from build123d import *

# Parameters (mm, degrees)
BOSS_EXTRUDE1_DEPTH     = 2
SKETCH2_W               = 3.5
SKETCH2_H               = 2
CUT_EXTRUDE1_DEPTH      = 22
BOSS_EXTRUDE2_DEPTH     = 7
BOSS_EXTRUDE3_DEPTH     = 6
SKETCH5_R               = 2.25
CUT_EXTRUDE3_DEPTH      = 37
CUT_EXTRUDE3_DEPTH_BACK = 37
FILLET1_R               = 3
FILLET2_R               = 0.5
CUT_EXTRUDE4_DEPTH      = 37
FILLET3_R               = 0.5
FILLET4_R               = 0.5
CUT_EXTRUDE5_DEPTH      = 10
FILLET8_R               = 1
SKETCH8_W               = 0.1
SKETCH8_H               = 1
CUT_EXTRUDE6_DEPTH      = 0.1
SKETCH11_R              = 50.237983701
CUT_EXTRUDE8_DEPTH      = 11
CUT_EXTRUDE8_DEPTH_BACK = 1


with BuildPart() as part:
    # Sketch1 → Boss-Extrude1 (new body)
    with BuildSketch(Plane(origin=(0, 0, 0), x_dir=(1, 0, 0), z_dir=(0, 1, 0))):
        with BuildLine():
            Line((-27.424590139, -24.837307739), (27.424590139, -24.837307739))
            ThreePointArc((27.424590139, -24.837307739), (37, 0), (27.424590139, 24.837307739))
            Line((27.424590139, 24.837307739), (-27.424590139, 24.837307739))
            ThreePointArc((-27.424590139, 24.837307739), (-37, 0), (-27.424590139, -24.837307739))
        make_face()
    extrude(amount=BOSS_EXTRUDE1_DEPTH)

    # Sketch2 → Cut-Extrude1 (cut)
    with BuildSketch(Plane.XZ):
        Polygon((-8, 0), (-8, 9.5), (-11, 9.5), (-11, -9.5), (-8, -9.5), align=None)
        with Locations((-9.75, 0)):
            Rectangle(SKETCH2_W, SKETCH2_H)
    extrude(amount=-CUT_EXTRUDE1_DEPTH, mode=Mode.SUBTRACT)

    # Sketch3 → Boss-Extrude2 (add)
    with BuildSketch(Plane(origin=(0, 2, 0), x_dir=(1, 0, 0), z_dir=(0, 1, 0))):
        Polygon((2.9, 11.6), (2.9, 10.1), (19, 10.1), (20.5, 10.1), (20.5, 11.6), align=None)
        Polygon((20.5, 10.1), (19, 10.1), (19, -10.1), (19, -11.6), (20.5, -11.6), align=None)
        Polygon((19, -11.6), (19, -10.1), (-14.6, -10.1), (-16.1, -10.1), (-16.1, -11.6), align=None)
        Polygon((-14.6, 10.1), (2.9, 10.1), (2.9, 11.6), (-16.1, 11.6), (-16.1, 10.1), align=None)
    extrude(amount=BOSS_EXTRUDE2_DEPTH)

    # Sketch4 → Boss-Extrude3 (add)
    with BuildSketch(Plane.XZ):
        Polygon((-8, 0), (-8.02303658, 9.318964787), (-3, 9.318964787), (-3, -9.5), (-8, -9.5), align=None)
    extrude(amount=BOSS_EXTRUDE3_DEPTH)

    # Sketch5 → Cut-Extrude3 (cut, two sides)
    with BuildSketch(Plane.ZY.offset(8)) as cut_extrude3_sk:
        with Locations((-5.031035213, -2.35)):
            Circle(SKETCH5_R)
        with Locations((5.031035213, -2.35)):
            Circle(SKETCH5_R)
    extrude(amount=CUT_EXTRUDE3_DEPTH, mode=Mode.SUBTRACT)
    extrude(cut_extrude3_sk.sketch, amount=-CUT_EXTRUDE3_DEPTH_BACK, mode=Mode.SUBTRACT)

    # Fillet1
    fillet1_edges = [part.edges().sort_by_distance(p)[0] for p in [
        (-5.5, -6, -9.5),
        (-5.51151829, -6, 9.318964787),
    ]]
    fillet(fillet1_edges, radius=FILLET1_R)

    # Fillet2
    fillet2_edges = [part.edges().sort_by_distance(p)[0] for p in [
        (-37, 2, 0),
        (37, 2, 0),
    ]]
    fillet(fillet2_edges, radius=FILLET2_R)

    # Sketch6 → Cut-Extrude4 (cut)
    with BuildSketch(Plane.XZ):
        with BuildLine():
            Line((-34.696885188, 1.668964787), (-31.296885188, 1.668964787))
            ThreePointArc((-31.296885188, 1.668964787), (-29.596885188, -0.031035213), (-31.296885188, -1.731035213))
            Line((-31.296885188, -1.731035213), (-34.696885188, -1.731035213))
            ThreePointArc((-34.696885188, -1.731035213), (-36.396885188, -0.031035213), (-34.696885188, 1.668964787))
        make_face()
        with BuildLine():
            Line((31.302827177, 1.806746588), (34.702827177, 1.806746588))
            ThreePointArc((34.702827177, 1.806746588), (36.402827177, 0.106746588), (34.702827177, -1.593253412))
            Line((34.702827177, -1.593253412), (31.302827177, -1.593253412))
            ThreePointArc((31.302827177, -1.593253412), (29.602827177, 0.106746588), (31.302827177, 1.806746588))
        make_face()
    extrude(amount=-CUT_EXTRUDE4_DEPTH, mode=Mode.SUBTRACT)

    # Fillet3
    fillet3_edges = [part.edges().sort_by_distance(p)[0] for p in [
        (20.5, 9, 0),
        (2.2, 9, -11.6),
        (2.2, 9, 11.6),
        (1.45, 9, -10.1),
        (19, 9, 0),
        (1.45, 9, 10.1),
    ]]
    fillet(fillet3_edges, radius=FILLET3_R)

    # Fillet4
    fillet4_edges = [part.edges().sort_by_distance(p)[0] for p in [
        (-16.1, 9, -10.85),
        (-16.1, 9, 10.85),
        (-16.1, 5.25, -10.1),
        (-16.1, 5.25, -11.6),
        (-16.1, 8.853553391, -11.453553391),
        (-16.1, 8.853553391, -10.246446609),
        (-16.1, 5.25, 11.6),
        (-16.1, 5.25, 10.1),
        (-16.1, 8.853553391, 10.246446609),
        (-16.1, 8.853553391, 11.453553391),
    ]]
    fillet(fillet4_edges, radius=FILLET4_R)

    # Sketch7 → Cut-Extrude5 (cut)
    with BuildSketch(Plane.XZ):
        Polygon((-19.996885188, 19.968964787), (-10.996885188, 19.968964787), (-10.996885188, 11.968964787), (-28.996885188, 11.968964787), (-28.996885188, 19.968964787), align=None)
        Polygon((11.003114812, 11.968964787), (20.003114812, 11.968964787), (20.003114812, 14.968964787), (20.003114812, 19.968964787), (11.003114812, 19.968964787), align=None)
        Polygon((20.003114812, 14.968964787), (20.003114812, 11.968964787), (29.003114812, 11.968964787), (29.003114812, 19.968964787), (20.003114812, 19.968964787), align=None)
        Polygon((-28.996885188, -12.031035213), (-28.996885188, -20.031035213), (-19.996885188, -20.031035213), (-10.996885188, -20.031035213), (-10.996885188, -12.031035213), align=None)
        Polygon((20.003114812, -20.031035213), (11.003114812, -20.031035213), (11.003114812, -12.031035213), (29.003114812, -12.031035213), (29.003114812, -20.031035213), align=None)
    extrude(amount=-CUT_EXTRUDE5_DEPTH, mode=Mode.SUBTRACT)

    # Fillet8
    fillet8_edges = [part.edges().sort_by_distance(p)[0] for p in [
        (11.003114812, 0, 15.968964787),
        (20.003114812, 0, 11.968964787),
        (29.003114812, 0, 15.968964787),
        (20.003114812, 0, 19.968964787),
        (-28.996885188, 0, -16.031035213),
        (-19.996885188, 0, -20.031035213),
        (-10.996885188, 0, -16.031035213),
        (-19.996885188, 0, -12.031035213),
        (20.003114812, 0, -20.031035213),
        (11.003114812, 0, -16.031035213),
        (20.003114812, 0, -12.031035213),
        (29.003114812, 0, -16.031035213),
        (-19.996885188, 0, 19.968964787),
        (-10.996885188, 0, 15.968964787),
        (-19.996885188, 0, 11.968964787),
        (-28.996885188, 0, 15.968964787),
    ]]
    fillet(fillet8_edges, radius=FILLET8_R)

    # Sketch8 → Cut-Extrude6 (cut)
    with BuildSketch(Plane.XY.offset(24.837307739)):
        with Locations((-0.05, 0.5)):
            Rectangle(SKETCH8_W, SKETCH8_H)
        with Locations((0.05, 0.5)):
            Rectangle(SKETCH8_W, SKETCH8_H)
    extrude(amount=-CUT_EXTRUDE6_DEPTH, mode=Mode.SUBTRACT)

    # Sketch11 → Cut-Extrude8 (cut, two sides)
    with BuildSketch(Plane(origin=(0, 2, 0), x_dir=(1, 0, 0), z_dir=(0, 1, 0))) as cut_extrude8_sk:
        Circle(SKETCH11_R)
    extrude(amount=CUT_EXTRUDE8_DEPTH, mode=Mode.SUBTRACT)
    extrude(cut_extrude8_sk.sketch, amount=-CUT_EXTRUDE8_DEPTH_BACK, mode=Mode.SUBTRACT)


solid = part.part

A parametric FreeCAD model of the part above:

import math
import FreeCAD as App
import Part
import Sketcher

V = App.Vector


def edges_at(feature, points):
    """Names of the edges that pass closest to the given points."""
    edges = feature.Shape.Edges
    near = lambda p: min(range(len(edges)), key=lambda i: edges[i].distToShape(Part.Vertex(*p))[0])
    return sorted({f"Edge{near(p) + 1}" for p in points})


def add_polygon(sketch, points):
    """Adds a closed chain of lines whose ends are joined by coincident constraints."""
    first, n = sketch.GeometryCount, len(points)
    for a, b in zip(points, points[1:] + points[:1]):
        sketch.addGeometry(Part.LineSegment(App.Vector(*a, 0), App.Vector(*b, 0)), False)
    for i in range(n):
        sketch.addConstraint(Sketcher.Constraint("Coincident", first + i, 2, first + (i + 1) % n, 1))

doc = App.newDocument("Part")
body = doc.addObject("PartDesign::Body", "Body")

# Sketch on XZ plane
sketch1 = body.newObject("Sketcher::SketchObject", "Sketch")
sketch1.AttachmentSupport = (doc.getObject("XZ_Plane"), [""])
sketch1.MapMode = "FlatFace"
sketch1.addGeometry([
    Part.LineSegment(V(-27, 25, 0), V(27, 25, 0)),
    Part.ArcOfCircle(Part.Circle(V(0, 0, 0), V(0, 0, 1), 37), math.radians(-42), math.radians(42)),
    Part.LineSegment(V(27, -25, 0), V(-27, -25, 0)),
    Part.ArcOfCircle(Part.Circle(V(0, 0, 0), V(0, 0, 1), 37), math.radians(138), math.radians(222)),
], False)
sketch1.addConstraint([
    Sketcher.Constraint("Coincident", 0, 2, 1, 2),
    Sketcher.Constraint("Coincident", 1, 1, 2, 1),
    Sketcher.Constraint("Coincident", 2, 2, 3, 2),
    Sketcher.Constraint("Coincident", 3, 1, 0, 1),
    Sketcher.Constraint("Horizontal", 0),
    Sketcher.Constraint("Horizontal", 2),
    Sketcher.Constraint("Coincident", 1, 3, -1, 1),
    Sketcher.Constraint("Coincident", 3, 3, -1, 1),
    Sketcher.Constraint("Equal", 1, 3),
    Sketcher.Constraint("Vertical", 0, 2, 1, 1),
    Sketcher.Constraint("Radius", 1, 37.0),
    Sketcher.Constraint("DistanceX", 0, 1, 0, 2, 54.84918),
])
pad1 = body.newObject("PartDesign::Pad", "Pad")
pad1.Profile = sketch1
pad1.Length = 2
pad1.Reversed = True

# Sketch on XZ plane
sketch2 = body.newObject("Sketcher::SketchObject", "Sketch001")
sketch2.AttachmentSupport = (doc.getObject("XZ_Plane"), [""])
sketch2.MapMode = "FlatFace"
add_polygon(sketch2, [(-8, 9.5), (-11, 9.5), (-11, 1), (-11.5, 1), (-11.5, -1), (-11, -1), (-11, -9.5), (-8, -9.5)])  # lines 0-7
sketch2.addConstraint([
    Sketcher.Constraint("Horizontal", 0),
    Sketcher.Constraint("Vertical", 1),
    Sketcher.Constraint("Horizontal", 2),
    Sketcher.Constraint("Vertical", 3),
    Sketcher.Constraint("Horizontal", 4),
    Sketcher.Constraint("Vertical", 5),
    Sketcher.Constraint("Horizontal", 6),
    Sketcher.Constraint("Vertical", 7),
    Sketcher.Constraint("Symmetric", 1, 2, 4, 2, -1),
    Sketcher.Constraint("Equal", 1, 5),
    Sketcher.Constraint("DistanceX", 0, 2, 0, 1, 3.0),
    Sketcher.Constraint("DistanceY", 3, 2, 3, 1, 2.0),
    Sketcher.Constraint("DistanceY", 7, 1, 7, 2, 19.0),
    Sketcher.Constraint("DistanceX", 2, 2, 2, 1, 0.5),
    Sketcher.Constraint("DistanceX", 0, 2, -1, 1, 11.0),
])
pocket1 = body.newObject("PartDesign::Pocket", "Pocket")
pocket1.Profile = sketch2
pocket1.Length = 22

# Sketch on XZ plane
sketch3 = body.newObject("Sketcher::SketchObject", "Sketch002")
sketch3.AttachmentSupport = (doc.getObject("XZ_Plane"), [""])
sketch3.MapMode = "FlatFace"
sketch3.AttachmentOffset = App.Placement(V(0, 0, -2), App.Rotation())
add_polygon(sketch3, [(19, -10.1), (19, 10.1), (-16.1, 10.1), (-16.1, 11.6), (20.5, 11.6), (20.5, -11.6), (-16.1, -11.6), (-16.1, -10.1)])  # lines 0-7
sketch3.addConstraint([
    Sketcher.Constraint("Vertical", 0),
    Sketcher.Constraint("Horizontal", 1),
    Sketcher.Constraint("Vertical", 2),
    Sketcher.Constraint("Horizontal", 3),
    Sketcher.Constraint("Vertical", 4),
    Sketcher.Constraint("Horizontal", 5),
    Sketcher.Constraint("Vertical", 6),
    Sketcher.Constraint("Horizontal", 7),
    Sketcher.Constraint("Symmetric", 2, 2, 5, 2, -1),
    Sketcher.Constraint("Equal", 2, 6),
    Sketcher.Constraint("DistanceX", 1, 2, 1, 1, 35.1),
    Sketcher.Constraint("DistanceX", 3, 1, 3, 2, 36.6),
    Sketcher.Constraint("DistanceY", 0, 1, 0, 2, 20.2),
    Sketcher.Constraint("DistanceY", 2, 1, 2, 2, 1.5),
    Sketcher.Constraint("DistanceX", -1, 1, 0, 2, 19.0),
])
pad2 = body.newObject("PartDesign::Pad", "Pad001")
pad2.Profile = sketch3
pad2.Length = 7
pad2.Reversed = True

# Sketch on XZ plane
sketch4 = body.newObject("Sketcher::SketchObject", "Sketch003")
sketch4.AttachmentSupport = (doc.getObject("XZ_Plane"), [""])
sketch4.MapMode = "FlatFace"
add_polygon(sketch4, [(-8, 9), (-8, 0), (-8, -10), (-3, -10), (-3, 9)])  # lines 0-4
sketch4.addConstraint([
    Sketcher.Constraint("Vertical", 1),
    Sketcher.Constraint("Horizontal", 2),
    Sketcher.Constraint("Vertical", 3),
    Sketcher.Constraint("Horizontal", 4),
    Sketcher.Constraint("PointOnObject", 0, 2, -1),
    Sketcher.Constraint("DistanceX", 2, 1, 2, 2, 5.0),
    Sketcher.Constraint("DistanceY", 1, 2, 1, 1, 9.5),
    Sketcher.Constraint("DistanceX", 0, 2, -1, 1, 8.0),
    Sketcher.Constraint("DistanceX", 4, 2, 4, 1, 5.023037),
    Sketcher.Constraint("DistanceY", 3, 1, 3, 2, 18.818965),
])
pad3 = body.newObject("PartDesign::Pad", "Pad002")
pad3.Profile = sketch4
pad3.Length = 6

# Sketch on YZ plane
sketch5 = body.newObject("Sketcher::SketchObject", "Sketch004")
sketch5.AttachmentSupport = (doc.getObject("YZ_Plane"), [""])
sketch5.MapMode = "FlatFace"
sketch5.AttachmentOffset = App.Placement(V(0, 0, -8), App.Rotation())
sketch5.addGeometry([
    Part.Circle(V(-2.4, -5, 0), V(0, 0, 1), 2.2),
    Part.Circle(V(-2.4, 5, 0), V(0, 0, 1), 2.2),
], False)
sketch5.addConstraint([
    Sketcher.Constraint("Equal", 0, 1),
    Sketcher.Constraint("Symmetric", 0, 3, 1, 3, -1),
    Sketcher.Constraint("Diameter", 0, 4.5),
    Sketcher.Constraint("DistanceX", 0, 3, -1, 1, 2.35),
    Sketcher.Constraint("DistanceY", 0, 3, 1, 3, 10.06207),
])
pocket2 = body.newObject("PartDesign::Pocket", "Pocket001")
pocket2.Profile = sketch5
pocket2.Type = "ThroughAll"
pocket2.Midplane = True
doc.recompute()

fillet = body.newObject("PartDesign::Fillet", "Fillet")
fillet.Base = (pocket2, edges_at(pocket2, [(-5.5, -6, -9.5), (-5.512, -6, 9.319)]))
fillet.Radius = 3
doc.recompute()

fillet2 = body.newObject("PartDesign::Fillet", "Fillet001")
fillet2.Base = (fillet, edges_at(fillet, [(-37, 2, 0), (37, 2, 0)]))
fillet2.Radius = 0.5

# Sketch on XZ plane
sketch6 = body.newObject("Sketcher::SketchObject", "Sketch005")
sketch6.AttachmentSupport = (doc.getObject("XZ_Plane"), [""])
sketch6.MapMode = "FlatFace"
sketch6.addGeometry([
    Part.LineSegment(V(-31.3, 1.7, 0), V(-34.7, 1.7, 0)),  # 0
    Part.ArcOfCircle(Part.Circle(V(-34.7, 0, 0), V(0, 0, 1), 1.7), math.radians(90), math.radians(270)),  # 1
    Part.LineSegment(V(-34.7, -1.7, 0), V(-31.3, -1.7, 0)),  # 2
    Part.ArcOfCircle(Part.Circle(V(-31.3, 0, 0), V(0, 0, 1), 1.7), math.radians(-90), math.radians(90)),  # 3
    Part.LineSegment(V(34.7, 1.8, 0), V(31.3, 1.8, 0)),  # 4
    Part.ArcOfCircle(Part.Circle(V(31.3, 0.1, 0), V(0, 0, 1), 1.7), math.radians(90), math.radians(270)),  # 5
    Part.LineSegment(V(31.3, -1.6, 0), V(34.7, -1.6, 0)),  # 6
    Part.ArcOfCircle(Part.Circle(V(34.7, 0.1, 0), V(0, 0, 1), 1.7), math.radians(-90), math.radians(90)),  # 7
], False)
sketch6.addConstraint([
    Sketcher.Constraint("Tangent", 0, 2, 1, 1),
    Sketcher.Constraint("Tangent", 1, 2, 2, 1),
    Sketcher.Constraint("Tangent", 2, 2, 3, 1),
    Sketcher.Constraint("Tangent", 3, 2, 0, 1),
    Sketcher.Constraint("Tangent", 4, 2, 5, 1),
    Sketcher.Constraint("Tangent", 5, 2, 6, 1),
    Sketcher.Constraint("Tangent", 6, 2, 7, 1),
    Sketcher.Constraint("Tangent", 7, 2, 4, 1),
    Sketcher.Constraint("Horizontal", 0),
    Sketcher.Constraint("Horizontal", 2),
    Sketcher.Constraint("Horizontal", 4),
    Sketcher.Constraint("Horizontal", 6),
    Sketcher.Constraint("Equal", 3, 5),
    Sketcher.Constraint("Equal", 2, 4),
    Sketcher.Constraint("Radius", 1, 1.7),
    Sketcher.Constraint("DistanceX", 0, 2, 0, 1, 3.4),
    Sketcher.Constraint("DistanceY", 3, 3, 5, 3, 0.137782),
    Sketcher.Constraint("DistanceX", 1, 3, -1, 1, 34.696885),
    Sketcher.Constraint("DistanceY", 1, 3, -1, 1, 0.031035),
    Sketcher.Constraint("DistanceX", -1, 1, 5, 3, 31.302827),
])
pocket3 = body.newObject("PartDesign::Pocket", "Pocket002")
pocket3.Profile = sketch6
pocket3.Length = 37
doc.recompute()

fillet3 = body.newObject("PartDesign::Fillet", "Fillet002")
fillet3.Base = (pocket3, edges_at(pocket3, [
    (20.5, 9, 0),
    (2.2, 9, -11.6),
    (2.2, 9, 11.6),
    (1.45, 9, -10.1),
    (19, 9, 0),
    (1.45, 9, 10.1),
]))
fillet3.Radius = 0.5
doc.recompute()

fillet4 = body.newObject("PartDesign::Fillet", "Fillet003")
fillet4.Base = (fillet3, edges_at(fillet3, [
    (-16.1, 9, -10.85),
    (-16.1, 9, 10.85),
    (-16.1, 5.25, -10.1),
    (-16.1, 5.25, -11.6),
    (-16.1, 8.854, -11.454),
    (-16.1, 8.854, -10.246),
    (-16.1, 5.25, 11.6),
    (-16.1, 5.25, 10.1),
    (-16.1, 8.854, 10.246),
    (-16.1, 8.854, 11.454),
]))
fillet4.Radius = 0.5

# Sketch on XZ plane
sketch7 = body.newObject("Sketcher::SketchObject", "Sketch006")
sketch7.AttachmentSupport = (doc.getObject("XZ_Plane"), [""])
sketch7.MapMode = "FlatFace"
add_polygon(sketch7, [(-11, 20), (-29, 20), (-29, 12), (-11, 12)])  # lines 0-3
add_polygon(sketch7, [(11, 12), (29, 12), (29, 20), (11, 20)])  # lines 4-7
add_polygon(sketch7, [(-29, -12), (-29, -20), (-11, -20), (-11, -12)])  # lines 8-11
add_polygon(sketch7, [(11, -20), (29, -20), (29, -12), (11, -12)])  # lines 12-15
sketch7.addConstraint([
    Sketcher.Constraint("Horizontal", 0),
    Sketcher.Constraint("Vertical", 1),
    Sketcher.Constraint("Horizontal", 2),
    Sketcher.Constraint("Vertical", 3),
    Sketcher.Constraint("Horizontal", 4),
    Sketcher.Constraint("Vertical", 5),
    Sketcher.Constraint("Horizontal", 6),
    Sketcher.Constraint("Vertical", 7),
    Sketcher.Constraint("Vertical", 8),
    Sketcher.Constraint("Horizontal", 9),
    Sketcher.Constraint("Vertical", 10),
    Sketcher.Constraint("Horizontal", 11),
    Sketcher.Constraint("Horizontal", 12),
    Sketcher.Constraint("Vertical", 13),
    Sketcher.Constraint("Horizontal", 14),
    Sketcher.Constraint("Vertical", 15),
    Sketcher.Constraint("Horizontal", 2, 2, 4, 2),
    Sketcher.Constraint("Horizontal", 3, 2, 5, 2),
    Sketcher.Constraint("Horizontal", 9, 2, 12, 2),
    Sketcher.Constraint("Horizontal", 11, 2, 13, 2),
    Sketcher.Constraint("Vertical", 1, 2, 8, 2),
    Sketcher.Constraint("Vertical", 3, 2, 9, 2),
    Sketcher.Constraint("Vertical", 5, 2, 12, 2),
    Sketcher.Constraint("Vertical", 7, 2, 14, 2),
    Sketcher.Constraint("Equal", 2, 4),
    Sketcher.Constraint("Equal", 7, 8),
    Sketcher.Constraint("DistanceX", 0, 2, 0, 1, 18.0),
    Sketcher.Constraint("DistanceY", 1, 2, 1, 1, 8.0),
    Sketcher.Constraint("DistanceX", 2, 2, 4, 2, 40.0),
    Sketcher.Constraint("DistanceY", 8, 2, 1, 2, 32.0),
    Sketcher.Constraint("DistanceX", 0, 2, -1, 1, 28.996885),
    Sketcher.Constraint("DistanceY", -1, 1, 0, 2, 19.968965),
])
pocket4 = body.newObject("PartDesign::Pocket", "Pocket003")
pocket4.Profile = sketch7
pocket4.Length = 10
doc.recompute()

fillet5 = body.newObject("PartDesign::Fillet", "Fillet004")
fillet5.Base = (pocket4, edges_at(pocket4, [
    (11.003, 0, 15.969),
    (20.003, 0, 11.969),
    (29.003, 0, 15.969),
    (20.003, 0, 19.969),
    (-28.997, 0, -16.031),
    (-19.997, 0, -20.031),
    (-10.997, 0, -16.031),
    (-19.997, 0, -12.031),
    (20.003, 0, -20.031),
    (11.003, 0, -16.031),
    (20.003, 0, -12.031),
    (29.003, 0, -16.031),
    (-19.997, 0, 19.969),
    (-10.997, 0, 15.969),
    (-19.997, 0, 11.969),
    (-28.997, 0, 15.969),
]))
fillet5.Radius = 1

# Sketch on XY plane
sketch8 = body.newObject("Sketcher::SketchObject", "Sketch007")
sketch8.AttachmentSupport = (doc.getObject("XY_Plane"), [""])
sketch8.MapMode = "FlatFace"
sketch8.AttachmentOffset = App.Placement(V(0, 0, 24.837308), App.Rotation())
add_polygon(sketch8, [(-0.1, 1), (-0.1, 0), (0.1, 0), (0.1, 1)])  # lines 0-3
sketch8.addConstraint([
    Sketcher.Constraint("Vertical", 0),
    Sketcher.Constraint("Horizontal", 1),
    Sketcher.Constraint("Vertical", 2),
    Sketcher.Constraint("Horizontal", 3),
    Sketcher.Constraint("Symmetric", 0, 2, 1, 2, -1, 1),
    Sketcher.Constraint("DistanceY", 0, 2, 0, 1, 1.0),
    Sketcher.Constraint("DistanceX", 1, 1, 1, 2, 0.2),
])
pocket5 = body.newObject("PartDesign::Pocket", "Pocket004")
pocket5.Profile = sketch8
pocket5.Length = 0.1

# Sketch on XZ plane
sketch9 = body.newObject("Sketcher::SketchObject", "Sketch008")
sketch9.AttachmentSupport = (doc.getObject("XZ_Plane"), [""])
sketch9.MapMode = "FlatFace"
sketch9.AttachmentOffset = App.Placement(V(0, 0, -2), App.Rotation())
sketch9.addGeometry(Part.Circle(V(0, 0, 0), V(0, 0, 1), 50), False)
sketch9.addConstraint([
    Sketcher.Constraint("Coincident", 0, 3, -1, 1),
    Sketcher.Constraint("Diameter", 0, 100.475967),
])
pocket6 = body.newObject("PartDesign::Pocket", "Pocket005")
pocket6.Profile = sketch9
pocket6.Type = "TwoLengths"
pocket6.Length = 11
pocket6.Length2 = 1

doc.recompute()
